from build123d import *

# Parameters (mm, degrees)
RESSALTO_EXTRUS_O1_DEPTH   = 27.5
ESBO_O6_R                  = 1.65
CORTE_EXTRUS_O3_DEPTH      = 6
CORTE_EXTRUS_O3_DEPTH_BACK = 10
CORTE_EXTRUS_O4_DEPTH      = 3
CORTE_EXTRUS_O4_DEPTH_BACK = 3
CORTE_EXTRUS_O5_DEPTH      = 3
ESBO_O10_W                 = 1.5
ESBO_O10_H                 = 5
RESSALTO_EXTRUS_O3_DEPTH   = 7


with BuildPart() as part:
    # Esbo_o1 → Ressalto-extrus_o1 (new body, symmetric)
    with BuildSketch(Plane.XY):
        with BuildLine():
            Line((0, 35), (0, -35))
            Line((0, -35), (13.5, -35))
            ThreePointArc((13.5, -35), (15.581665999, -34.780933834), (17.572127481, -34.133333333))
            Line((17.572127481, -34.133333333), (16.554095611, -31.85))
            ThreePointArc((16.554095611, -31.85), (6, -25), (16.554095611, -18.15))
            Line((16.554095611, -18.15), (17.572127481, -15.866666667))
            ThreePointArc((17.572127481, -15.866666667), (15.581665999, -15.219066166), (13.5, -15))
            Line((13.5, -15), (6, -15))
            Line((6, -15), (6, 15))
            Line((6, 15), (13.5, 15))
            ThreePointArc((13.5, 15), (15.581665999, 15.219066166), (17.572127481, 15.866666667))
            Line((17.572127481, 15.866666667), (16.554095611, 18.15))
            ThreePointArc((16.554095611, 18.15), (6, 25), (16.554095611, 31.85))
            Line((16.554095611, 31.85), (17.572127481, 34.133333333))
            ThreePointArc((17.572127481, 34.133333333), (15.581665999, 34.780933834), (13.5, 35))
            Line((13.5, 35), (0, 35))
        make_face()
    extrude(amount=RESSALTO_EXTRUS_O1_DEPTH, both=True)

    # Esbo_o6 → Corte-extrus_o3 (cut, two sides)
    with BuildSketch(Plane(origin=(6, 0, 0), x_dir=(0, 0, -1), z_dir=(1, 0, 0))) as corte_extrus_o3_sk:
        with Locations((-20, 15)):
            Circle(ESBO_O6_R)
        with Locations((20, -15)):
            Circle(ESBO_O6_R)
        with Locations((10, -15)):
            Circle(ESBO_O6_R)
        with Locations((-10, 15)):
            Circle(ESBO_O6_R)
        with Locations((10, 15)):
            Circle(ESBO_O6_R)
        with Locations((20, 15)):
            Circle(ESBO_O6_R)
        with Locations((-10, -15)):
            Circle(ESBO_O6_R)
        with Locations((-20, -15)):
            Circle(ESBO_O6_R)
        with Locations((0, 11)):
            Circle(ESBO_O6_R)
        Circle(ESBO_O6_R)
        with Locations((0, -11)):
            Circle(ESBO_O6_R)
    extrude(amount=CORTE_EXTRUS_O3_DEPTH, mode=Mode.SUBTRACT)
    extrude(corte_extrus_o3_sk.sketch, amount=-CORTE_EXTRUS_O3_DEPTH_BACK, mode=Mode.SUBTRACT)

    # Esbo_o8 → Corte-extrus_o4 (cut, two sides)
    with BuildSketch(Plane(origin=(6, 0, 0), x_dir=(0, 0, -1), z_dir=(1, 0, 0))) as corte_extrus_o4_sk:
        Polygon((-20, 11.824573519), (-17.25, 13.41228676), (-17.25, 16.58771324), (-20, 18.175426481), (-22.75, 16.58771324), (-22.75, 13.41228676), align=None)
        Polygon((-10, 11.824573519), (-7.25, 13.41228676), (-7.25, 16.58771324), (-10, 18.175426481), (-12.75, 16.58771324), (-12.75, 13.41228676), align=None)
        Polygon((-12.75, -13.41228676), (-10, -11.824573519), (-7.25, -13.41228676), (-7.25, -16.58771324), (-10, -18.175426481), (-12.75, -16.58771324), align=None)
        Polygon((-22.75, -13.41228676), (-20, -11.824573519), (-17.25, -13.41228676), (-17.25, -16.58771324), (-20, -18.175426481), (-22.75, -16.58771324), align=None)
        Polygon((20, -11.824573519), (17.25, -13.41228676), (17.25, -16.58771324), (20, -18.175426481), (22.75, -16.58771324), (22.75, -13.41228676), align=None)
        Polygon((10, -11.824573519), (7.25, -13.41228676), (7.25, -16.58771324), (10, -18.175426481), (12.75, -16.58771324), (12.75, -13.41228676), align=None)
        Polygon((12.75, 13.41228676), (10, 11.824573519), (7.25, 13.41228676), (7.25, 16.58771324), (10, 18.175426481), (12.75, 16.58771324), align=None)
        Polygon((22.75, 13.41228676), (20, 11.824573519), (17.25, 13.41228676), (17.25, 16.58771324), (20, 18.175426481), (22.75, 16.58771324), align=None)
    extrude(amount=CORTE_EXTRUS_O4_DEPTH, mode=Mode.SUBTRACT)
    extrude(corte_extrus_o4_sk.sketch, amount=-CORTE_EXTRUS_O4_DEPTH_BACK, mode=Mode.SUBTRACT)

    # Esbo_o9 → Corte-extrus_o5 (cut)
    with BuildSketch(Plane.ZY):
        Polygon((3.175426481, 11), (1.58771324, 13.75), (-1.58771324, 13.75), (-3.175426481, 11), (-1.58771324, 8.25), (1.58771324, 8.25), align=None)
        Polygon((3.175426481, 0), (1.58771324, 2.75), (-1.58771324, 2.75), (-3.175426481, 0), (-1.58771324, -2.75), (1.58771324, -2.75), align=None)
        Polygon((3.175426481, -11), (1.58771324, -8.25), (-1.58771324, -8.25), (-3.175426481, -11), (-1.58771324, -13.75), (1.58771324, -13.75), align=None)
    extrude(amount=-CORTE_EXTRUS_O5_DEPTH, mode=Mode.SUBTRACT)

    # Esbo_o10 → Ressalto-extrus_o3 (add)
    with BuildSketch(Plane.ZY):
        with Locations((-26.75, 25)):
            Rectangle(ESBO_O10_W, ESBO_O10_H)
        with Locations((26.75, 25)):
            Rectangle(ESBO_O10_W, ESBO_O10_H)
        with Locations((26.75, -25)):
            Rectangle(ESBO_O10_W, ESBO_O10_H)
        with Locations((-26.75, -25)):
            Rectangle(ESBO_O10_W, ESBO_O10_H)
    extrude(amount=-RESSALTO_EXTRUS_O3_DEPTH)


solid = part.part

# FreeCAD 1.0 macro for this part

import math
import FreeCAD as App
import Part
import Sketcher
Q = App.Units.Quantity


def add_polygon(sketch, points):
    """Adds a closed chain of lines whose ends are joined by coincident constraints."""
    first, n = sketch.GeometryCount, len(points)
    for a, b in zip(points, points[1:] + points[:1]):
        sketch.addGeometry(Part.LineSegment(App.Vector(*a, 0), App.Vector(*b, 0)), False)
    for i in range(n):
        sketch.addConstraint(Sketcher.Constraint("Coincident", first + i, 2, first + (i + 1) % n, 1))

doc = App.newDocument("Part")
body = doc.addObject("PartDesign::Body", "Body")

# Sketch on XY plane
sketch1 = body.newObject("Sketcher::SketchObject", "Sketch")
sketch1.AttachmentSupport = (doc.getObject("XY_Plane"), [""])
sketch1.MapMode = "FlatFace"
sketch1.addGeometry(Part.LineSegment(App.Vector(0, 35, 0), App.Vector(0, -35, 0)), False)
sketch1.addGeometry(Part.LineSegment(App.Vector(0, -35, 0), App.Vector(13.5, -35, 0)), False)
sketch1.addGeometry(Part.ArcOfCircle(Part.Circle(App.Vector(13.5, -25, 0), App.Vector(0, 0, 1), 10), math.radians(-90), math.radians(-66)), False)
sketch1.addGeometry(Part.LineSegment(App.Vector(17.6, -34.1, 0), App.Vector(16.6, -31.9, 0)), False)
sketch1.addGeometry(Part.ArcOfCircle(Part.Circle(App.Vector(13.5, -25, 0), App.Vector(0, 0, 1), 7.5), math.radians(66), math.radians(294)), False)
sketch1.addGeometry(Part.LineSegment(App.Vector(16.6, -18.1, 0), App.Vector(17.6, -15.9, 0)), False)
sketch1.addGeometry(Part.ArcOfCircle(Part.Circle(App.Vector(13.5, -25, 0), App.Vector(0, 0, 1), 10), math.radians(66), math.radians(90)), False)
sketch1.addGeometry(Part.LineSegment(App.Vector(13.5, -15, 0), App.Vector(6, -15, 0)), False)
sketch1.addGeometry(Part.LineSegment(App.Vector(6, -15, 0), App.Vector(6, 15, 0)), False)
sketch1.addGeometry(Part.LineSegment(App.Vector(6, 15, 0), App.Vector(13.5, 15, 0)), False)
sketch1.addGeometry(Part.ArcOfCircle(Part.Circle(App.Vector(13.5, 25, 0), App.Vector(0, 0, 1), 10), math.radians(-90), math.radians(-66)), False)
sketch1.addGeometry(Part.LineSegment(App.Vector(17.6, 15.9, 0), App.Vector(16.6, 18.1, 0)), False)
sketch1.addGeometry(Part.ArcOfCircle(Part.Circle(App.Vector(13.5, 25, 0), App.Vector(0, 0, 1), 7.5), math.radians(66), math.radians(294)), False)
sketch1.addGeometry(Part.LineSegment(App.Vector(16.6, 31.9, 0), App.Vector(17.6, 34.1, 0)), False)
sketch1.addGeometry(Part.ArcOfCircle(Part.Circle(App.Vector(13.5, 25, 0), App.Vector(0, 0, 1), 10), math.radians(66), math.radians(90)), False)
sketch1.addGeometry(Part.LineSegment(App.Vector(13.5, 35, 0), App.Vector(0, 35, 0)), False)
sketch1.addConstraint(Sketcher.Constraint("Coincident", 0, 2, 1, 1))
sketch1.addConstraint(Sketcher.Constraint("Tangent", 1, 2, 2, 1))
sketch1.addConstraint(Sketcher.Constraint("Coincident", 2, 2, 3, 1))
sketch1.addConstraint(Sketcher.Constraint("Coincident", 3, 2, 4, 2))
sketch1.addConstraint(Sketcher.Constraint("Coincident", 4, 1, 5, 1))
sketch1.addConstraint(Sketcher.Constraint("Coincident", 5, 2, 6, 1))
sketch1.addConstraint(Sketcher.Constraint("Tangent", 6, 2, 7, 1))
sketch1.addConstraint(Sketcher.Constraint("Coincident", 7, 2, 8, 1))
sketch1.addConstraint(Sketcher.Constraint("Coincident", 8, 2, 9, 1))
sketch1.addConstraint(Sketcher.Constraint("Tangent", 9, 2, 10, 1))
sketch1.addConstraint(Sketcher.Constraint("Coincident", 10, 2, 11, 1))
sketch1.addConstraint(Sketcher.Constraint("Coincident", 11, 2, 12, 2))
sketch1.addConstraint(Sketcher.Constraint("Coincident", 12, 1, 13, 1))
sketch1.addConstraint(Sketcher.Constraint("Coincident", 13, 2, 14, 1))
sketch1.addConstraint(Sketcher.Constraint("Tangent", 14, 2, 15, 1))
sketch1.addConstraint(Sketcher.Constraint("Coincident", 15, 2, 0, 1))
sketch1.addConstraint(Sketcher.Constraint("Vertical", 0))
sketch1.addConstraint(Sketcher.Constraint("Horizontal", 1))
sketch1.addConstraint(Sketcher.Constraint("Horizontal", 7))
sketch1.addConstraint(Sketcher.Constraint("Vertical", 8))
sketch1.addConstraint(Sketcher.Constraint("Horizontal", 9))
sketch1.addConstraint(Sketcher.Constraint("Horizontal", 15))
sketch1.addConstraint(Sketcher.Constraint("Coincident", 4, 3, 2, 3))
sketch1.addConstraint(Sketcher.Constraint("Coincident", 6, 3, 2, 3))
sketch1.addConstraint(Sketcher.Constraint("Coincident", 12, 3, 10, 3))
sketch1.addConstraint(Sketcher.Constraint("Coincident", 14, 3, 10, 3))
sketch1.addConstraint(Sketcher.Constraint("Equal", 2, 6))
sketch1.addConstraint(Sketcher.Constraint("Equal", 6, 10))
sketch1.addConstraint(Sketcher.Constraint("Equal", 4, 12))
sketch1.addConstraint(Sketcher.Constraint("Equal", 10, 14))
sketch1.addConstraint(Sketcher.Constraint("Symmetric", 0, 2, 15, 2, -1, 1))
sketch1.addConstraint(Sketcher.Constraint("Symmetric", 5, 2, 10, 2, -1))
sketch1.addConstraint(Sketcher.Constraint("Parallel", 3, 11))
sketch1.addConstraint(Sketcher.Constraint("Parallel", 5, 13))
sketch1.addConstraint(Sketcher.Constraint("Vertical", 3, 2, 4, 1))
sketch1.addConstraint(Sketcher.Constraint("Vertical", 2, 2, 5, 2))
sketch1.addConstraint(Sketcher.Constraint("Vertical", 11, 2, 12, 1))
sketch1.addConstraint(Sketcher.Constraint("Radius", 2, 10.0))
sketch1.addConstraint(Sketcher.Constraint("Radius", 4, 7.5))
sketch1.addConstraint(Sketcher.Constraint("DistanceY", 0, 2, 0, 1, 70.0))
sketch1.addConstraint(Sketcher.Constraint("DistanceX", 1, 1, 1, 2, 13.5))
sketch1.addConstraint(Sketcher.Constraint("DistanceX", 7, 2, 7, 1, 7.5))
sketch1.addConstraint(Sketcher.Constraint("DistanceY", 3, 2, 4, 1, 13.7))
sketch1.addConstraint(Sketcher.Constraint("DistanceX", 3, 2, 2, 2, 1.018032))
pad1 = body.newObject("PartDesign::Pad", "Pad")
pad1.Profile = sketch1
pad1.Length = 55
pad1.Midplane = True

# Sketch on YZ plane
sketch2 = body.newObject("Sketcher::SketchObject", "Sketch001")
sketch2.AttachmentSupport = (doc.getObject("YZ_Plane"), [""])
sketch2.MapMode = "FlatFace"
sketch2.AttachmentOffset = App.Placement(App.Vector(0, 0, 6), App.Rotation())
sketch2.addGeometry(Part.Circle(App.Vector(15, 20, 0), App.Vector(0, 0, 1), 1.6), False)
sketch2.addGeometry(Part.Circle(App.Vector(-15, -20, 0), App.Vector(0, 0, 1), 1.6), False)
sketch2.addGeometry(Part.Circle(App.Vector(-15, -10, 0), App.Vector(0, 0, 1), 1.6), False)
sketch2.addGeometry(Part.Circle(App.Vector(15, 10, 0), App.Vector(0, 0, 1), 1.6), False)
sketch2.addGeometry(Part.Circle(App.Vector(15, -10, 0), App.Vector(0, 0, 1), 1.6), False)
sketch2.addGeometry(Part.Circle(App.Vector(15, -20, 0), App.Vector(0, 0, 1), 1.6), False)
sketch2.addGeometry(Part.Circle(App.Vector(-15, 10, 0), App.Vector(0, 0, 1), 1.6), False)
sketch2.addGeometry(Part.Circle(App.Vector(-15, 20, 0), App.Vector(0, 0, 1), 1.6), False)
sketch2.addGeometry(Part.Circle(App.Vector(11, 0, 0), App.Vector(0, 0, 1), 1.6), False)
sketch2.addGeometry(Part.Circle(App.Vector(0, 0, 0), App.Vector(0, 0, 1), 1.6), False)
sketch2.addGeometry(Part.Circle(App.Vector(-11, 0, 0), App.Vector(0, 0, 1), 1.6), False)
sketch2.addConstraint(Sketcher.Constraint("Coincident", 9, 3, -1, 1))
sketch2.addConstraint(Sketcher.Constraint("Equal", 0, 1))
sketch2.addConstraint(Sketcher.Constraint("Equal", 1, 2))
sketch2.addConstraint(Sketcher.Constraint("Equal", 2, 3))
sketch2.addConstraint(Sketcher.Constraint("Equal", 3, 4))
sketch2.addConstraint(Sketcher.Constraint("Equal", 4, 5))
sketch2.addConstraint(Sketcher.Constraint("Equal", 5, 6))
sketch2.addConstraint(Sketcher.Constraint("Equal", 6, 7))
sketch2.addConstraint(Sketcher.Constraint("Equal", 7, 8))
sketch2.addConstraint(Sketcher.Constraint("Equal", 8, 9))
sketch2.addConstraint(Sketcher.Constraint("Equal", 9, 10))
sketch2.addConstraint(Sketcher.Constraint("Symmetric", 0, 3, 1, 3, -1, 1))
sketch2.addConstraint(Sketcher.Constraint("Symmetric", 2, 3, 3, 3, -1, 1))
sketch2.addConstraint(Sketcher.Constraint("Symmetric", 4, 3, 6, 3, -1, 1))
sketch2.addConstraint(Sketcher.Constraint("Symmetric", 5, 3, 7, 3, -1, 1))
sketch2.addConstraint(Sketcher.Constraint("Symmetric", 8, 3, 10, 3, -1, 1))
sketch2.addConstraint(Sketcher.Constraint("Symmetric", 2, 3, 4, 3, -2))
sketch2.addConstraint(Sketcher.Constraint("Symmetric", 1, 3, 5, 3, -2))
sketch2.addConstraint(Sketcher.Constraint("PointOnObject", 8, 3, -1))
sketch2.addConstraint(Sketcher.Constraint("Vertical", 1, 3, 2, 3))
sketch2.addConstraint(Sketcher.Constraint("Diameter", 0, 3.3))
sketch2.addConstraint(Sketcher.Constraint("DistanceX", -1, 1, 0, 3, 15.0))
sketch2.addConstraint(Sketcher.Constraint("DistanceY", -1, 1, 0, 3, 20.0))
sketch2.addConstraint(Sketcher.Constraint("DistanceY", 2, 3, -1, 1, 10.0))
sketch2.addConstraint(Sketcher.Constraint("DistanceX", -1, 1, 8, 3, 11.0))
pocket1 = body.newObject("PartDesign::Pocket", "Pocket")
pocket1.Profile = sketch2
pocket1.Type = "TwoLengths"
pocket1.Length = 6
pocket1.Length2 = 10
pocket1.Reversed = True

# Sketch on YZ plane
sketch3 = body.newObject("Sketcher::SketchObject", "Sketch002")
sketch3.AttachmentSupport = (doc.getObject("YZ_Plane"), [""])
sketch3.MapMode = "FlatFace"
sketch3.AttachmentOffset = App.Placement(App.Vector(0, 0, 6), App.Rotation())
add_polygon(sketch3, [(11.8, 20), (13.4, 17.2), (16.6, 17.2), (18.2, 20), (16.6, 22.8), (13.4, 22.8)])  # lines 0-5
add_polygon(sketch3, [(11.8, 10), (13.4, 7.2), (16.6, 7.2), (18.2, 10), (16.6, 12.8), (13.4, 12.8)])  # lines 6-11
add_polygon(sketch3, [(-11.8, 10), (-13.4, 12.8), (-16.6, 12.8), (-18.2, 10), (-16.6, 7.2), (-13.4, 7.2)])  # lines 12-17
add_polygon(sketch3, [(-11.8, 20), (-13.4, 22.8), (-16.6, 22.8), (-18.2, 20), (-16.6, 17.2), (-13.4, 17.2)])  # lines 18-23
add_polygon(sketch3, [(-11.8, -20), (-13.4, -17.2), (-16.6, -17.2), (-18.2, -20), (-16.6, -22.8), (-13.4, -22.8)])  # lines 24-29
add_polygon(sketch3, [(-11.8, -10), (-13.4, -7.2), (-16.6, -7.2), (-18.2, -10), (-16.6, -12.8), (-13.4, -12.8)])  # lines 30-35
add_polygon(sketch3, [(11.8, -10), (13.4, -12.8), (16.6, -12.8), (18.2, -10), (16.6, -7.2), (13.4, -7.2)])  # lines 36-41
add_polygon(sketch3, [(11.8, -20), (13.4, -22.8), (16.6, -22.8), (18.2, -20), (16.6, -17.2), (13.4, -17.2)])  # lines 42-47
sketch3.addConstraint(Sketcher.Constraint("Horizontal", 1))
sketch3.addConstraint(Sketcher.Constraint("Horizontal", 4))
sketch3.addConstraint(Sketcher.Constraint("Horizontal", 7))
sketch3.addConstraint(Sketcher.Constraint("Horizontal", 10))
sketch3.addConstraint(Sketcher.Constraint("Horizontal", 13))
sketch3.addConstraint(Sketcher.Constraint("Horizontal", 16))
sketch3.addConstraint(Sketcher.Constraint("Horizontal", 19))
sketch3.addConstraint(Sketcher.Constraint("Horizontal", 22))
sketch3.addConstraint(Sketcher.Constraint("Horizontal", 25))
sketch3.addConstraint(Sketcher.Constraint("Horizontal", 28))
sketch3.addConstraint(Sketcher.Constraint("Horizontal", 31))
sketch3.addConstraint(Sketcher.Constraint("Horizontal", 34))
sketch3.addConstraint(Sketcher.Constraint("Horizontal", 37))
sketch3.addConstraint(Sketcher.Constraint("Horizontal", 40))
sketch3.addConstraint(Sketcher.Constraint("Horizontal", 43))
sketch3.addConstraint(Sketcher.Constraint("Horizontal", 46))
sketch3.addConstraint(Sketcher.Constraint("Symmetric", 0, 2, 24, 2, -1, 1))
sketch3.addConstraint(Sketcher.Constraint("Symmetric", 2, 2, 26, 2, -1, 1))
sketch3.addConstraint(Sketcher.Constraint("Symmetric", 3, 2, 27, 2, -1, 1))
sketch3.addConstraint(Sketcher.Constraint("Symmetric", 5, 2, 29, 2, -1, 1))
sketch3.addConstraint(Sketcher.Constraint("Symmetric", 6, 2, 30, 2, -1, 1))
sketch3.addConstraint(Sketcher.Constraint("Symmetric", 8, 2, 32, 2, -1, 1))
sketch3.addConstraint(Sketcher.Constraint("Symmetric", 9, 2, 33, 2, -1, 1))
sketch3.addConstraint(Sketcher.Constraint("Symmetric", 11, 2, 35, 2, -1, 1))
sketch3.addConstraint(Sketcher.Constraint("Symmetric", 12, 2, 36, 2, -1, 1))
sketch3.addConstraint(Sketcher.Constraint("Symmetric", 14, 2, 38, 2, -1, 1))
sketch3.addConstraint(Sketcher.Constraint("Symmetric", 15, 2, 39, 2, -1, 1))
sketch3.addConstraint(Sketcher.Constraint("Symmetric", 17, 2, 41, 2, -1, 1))
sketch3.addConstraint(Sketcher.Constraint("Symmetric", 18, 2, 42, 2, -1, 1))
sketch3.addConstraint(Sketcher.Constraint("Symmetric", 20, 2, 44, 2, -1, 1))
sketch3.addConstraint(Sketcher.Constraint("Symmetric", 21, 2, 45, 2, -1, 1))
sketch3.addConstraint(Sketcher.Constraint("Symmetric", 23, 2, 47, 2, -1, 1))
sketch3.addConstraint(Sketcher.Constraint("Symmetric", 10, 2, 12, 2, -2))
sketch3.addConstraint(Sketcher.Constraint("Symmetric", 8, 2, 14, 2, -2))
sketch3.addConstraint(Sketcher.Constraint("Symmetric", 7, 2, 15, 2, -2))
sketch3.addConstraint(Sketcher.Constraint("Symmetric", 11, 2, 17, 2, -2))
sketch3.addConstraint(Sketcher.Constraint("Symmetric", 4, 2, 18, 2, -2))
sketch3.addConstraint(Sketcher.Constraint("Symmetric", 2, 2, 20, 2, -2))
sketch3.addConstraint(Sketcher.Constraint("Symmetric", 1, 2, 21, 2, -2))
sketch3.addConstraint(Sketcher.Constraint("Symmetric", 5, 2, 23, 2, -2))
sketch3.addConstraint(Sketcher.Constraint("Parallel", 0, 3))
sketch3.addConstraint(Sketcher.Constraint("Parallel", 2, 5))
sketch3.addConstraint(Sketcher.Constraint("Parallel", 3, 6))
sketch3.addConstraint(Sketcher.Constraint("Parallel", 5, 8))
sketch3.addConstraint(Sketcher.Constraint("Parallel", 6, 9))
sketch3.addConstraint(Sketcher.Constraint("Parallel", 8, 11))
sketch3.addConstraint(Sketcher.Constraint("Parallel", 9, 12))
sketch3.addConstraint(Sketcher.Constraint("Parallel", 11, 14))
sketch3.addConstraint(Sketcher.Constraint("Parallel", 14, 17))
sketch3.addConstraint(Sketcher.Constraint("Parallel", 17, 20))
sketch3.addConstraint(Sketcher.Constraint("Parallel", 20, 23))
sketch3.addConstraint(Sketcher.Constraint("Parallel", 23, 26))
sketch3.addConstraint(Sketcher.Constraint("Parallel", 26, 29))
sketch3.addConstraint(Sketcher.Constraint("Parallel", 29, 32))
sketch3.addConstraint(Sketcher.Constraint("Parallel", 32, 35))
sketch3.addConstraint(Sketcher.Constraint("Parallel", 35, 38))
sketch3.addConstraint(Sketcher.Constraint("Parallel", 38, 41))
sketch3.addConstraint(Sketcher.Constraint("Parallel", 41, 44))
sketch3.addConstraint(Sketcher.Constraint("Parallel", 44, 47))
sketch3.addConstraint(Sketcher.Constraint("Horizontal", 2, 2, 5, 2))
sketch3.addConstraint(Sketcher.Constraint("Horizontal", 8, 2, 11, 2))
sketch3.addConstraint(Sketcher.Constraint("Vertical", 1, 2, 3, 2))
sketch3.addConstraint(Sketcher.Constraint("Vertical", 4, 2, 6, 2))
sketch3.addConstraint(Sketcher.Constraint("Vertical", 3, 2, 7, 2))
sketch3.addConstraint(Sketcher.Constraint("Vertical", 2, 2, 8, 2))
sketch3.addConstraint(Sketcher.Constraint("Vertical", 7, 2, 9, 2))
sketch3.addConstraint(Sketcher.Constraint("Angle", 0, Q("-60 deg")))
sketch3.addConstraint(Sketcher.Constraint("DistanceY", -1, 1, 2, 2, 20.0))
sketch3.addConstraint(Sketcher.Constraint("DistanceY", -1, 1, 8, 2, 10.0))
sketch3.addConstraint(Sketcher.Constraint("DistanceX", 13, 2, 10, 2, 30.0))
sketch3.addConstraint(Sketcher.Constraint("DistanceY", 1, 2, 3, 2, 5.5))
sketch3.addConstraint(Sketcher.Constraint("DistanceX", 1, 1, 1, 2, 3.175426))
pocket2 = body.newObject("PartDesign::Pocket", "Pocket001")
pocket2.Profile = sketch3
pocket2.Type = "TwoLengths"
pocket2.Length = 3
pocket2.Length2 = 3
pocket2.Reversed = True

# Sketch on YZ plane
sketch4 = body.newObject("Sketcher::SketchObject", "Sketch003")
sketch4.AttachmentSupport = (doc.getObject("YZ_Plane"), [""])
sketch4.MapMode = "FlatFace"
add_polygon(sketch4, [(11, 3.2), (13.8, 1.6), (13.8, -1.6), (11, -3.2), (8.2, -1.6), (8.2, 1.6)])  # lines 0-5
add_polygon(sketch4, [(0, 3.2), (2.8, 1.6), (2.8, -1.6), (0, -3.2), (-2.8, -1.6), (-2.8, 1.6)])  # lines 6-11
add_polygon(sketch4, [(-11, 3.2), (-8.2, 1.6), (-8.2, -1.6), (-11, -3.2), (-13.8, -1.6), (-13.8, 1.6)])  # lines 12-17
sketch4.addConstraint(Sketcher.Constraint("Vertical", 1))
sketch4.addConstraint(Sketcher.Constraint("Vertical", 4))
sketch4.addConstraint(Sketcher.Constraint("Vertical", 7))
sketch4.addConstraint(Sketcher.Constraint("Vertical", 10))
sketch4.addConstraint(Sketcher.Constraint("Vertical", 13))
sketch4.addConstraint(Sketcher.Constraint("Vertical", 16))
sketch4.addConstraint(Sketcher.Constraint("Symmetric", 6, 2, 9, 2, -1, 1))
sketch4.addConstraint(Sketcher.Constraint("Symmetric", 8, 2, 11, 2, -1, 1))
sketch4.addConstraint(Sketcher.Constraint("Symmetric", 3, 2, 12, 2, -1, 1))
sketch4.addConstraint(Sketcher.Constraint("Symmetric", 5, 2, 14, 2, -1, 1))
sketch4.addConstraint(Sketcher.Constraint("Symmetric", 0, 2, 15, 2, -1, 1))
sketch4.addConstraint(Sketcher.Constraint("Symmetric", 2, 2, 17, 2, -1, 1))
sketch4.addConstraint(Sketcher.Constraint("Symmetric", 2, 2, 14, 2, -2))
sketch4.addConstraint(Sketcher.Constraint("PointOnObject", 8, 2, -2))
sketch4.addConstraint(Sketcher.Constraint("Parallel", 0, 3))
sketch4.addConstraint(Sketcher.Constraint("Parallel", 2, 5))
sketch4.addConstraint(Sketcher.Constraint("Parallel", 3, 6))
sketch4.addConstraint(Sketcher.Constraint("Parallel", 5, 8))
sketch4.addConstraint(Sketcher.Constraint("Parallel", 8, 11))
sketch4.addConstraint(Sketcher.Constraint("Parallel", 11, 14))
sketch4.addConstraint(Sketcher.Constraint("Parallel", 14, 17))
sketch4.addConstraint(Sketcher.Constraint("Horizontal", 1, 2, 3, 2))
sketch4.addConstraint(Sketcher.Constraint("Horizontal", 0, 2, 4, 2))
sketch4.addConstraint(Sketcher.Constraint("Horizontal", 4, 2, 6, 2))
sketch4.addConstraint(Sketcher.Constraint("Horizontal", 2, 2, 8, 2))
sketch4.addConstraint(Sketcher.Constraint("Angle", 0, Q("-30 deg")))
sketch4.addConstraint(Sketcher.Constraint("DistanceX", -1, 1, 2, 2, 11.0))
sketch4.addConstraint(Sketcher.Constraint("DistanceX", 3, 2, 1, 2, 5.5))
sketch4.addConstraint(Sketcher.Constraint("DistanceY", 1, 2, 1, 1, 3.175426))
pocket3 = body.newObject("PartDesign::Pocket", "Pocket002")
pocket3.Profile = sketch4
pocket3.Length = 3
pocket3.Reversed = True

# Sketch on YZ plane
sketch5 = body.newObject("Sketcher::SketchObject", "Sketch004")
sketch5.AttachmentSupport = (doc.getObject("YZ_Plane"), [""])
sketch5.MapMode = "FlatFace"
add_polygon(sketch5, [(27.5, -27.5), (22.5, -27.5), (22.5, -26), (27.5, -26)])  # lines 0-3
add_polygon(sketch5, [(27.5, 26), (22.5, 26), (22.5, 27.5), (27.5, 27.5)])  # lines 4-7
add_polygon(sketch5, [(-22.5, 26), (-27.5, 26), (-27.5, 27.5), (-22.5, 27.5)])  # lines 8-11
add_polygon(sketch5, [(-22.5, -27.5), (-27.5, -27.5), (-27.5, -26), (-22.5, -26)])  # lines 12-15
sketch5.addConstraint(Sketcher.Constraint("Horizontal", 0))
sketch5.addConstraint(Sketcher.Constraint("Vertical", 1))
sketch5.addConstraint(Sketcher.Constraint("Horizontal", 2))
sketch5.addConstraint(Sketcher.Constraint("Vertical", 3))
sketch5.addConstraint(Sketcher.Constraint("Horizontal", 4))
sketch5.addConstraint(Sketcher.Constraint("Vertical", 5))
sketch5.addConstraint(Sketcher.Constraint("Horizontal", 6))
sketch5.addConstraint(Sketcher.Constraint("Vertical", 7))
sketch5.addConstraint(Sketcher.Constraint("Horizontal", 8))
sketch5.addConstraint(Sketcher.Constraint("Vertical", 9))
sketch5.addConstraint(Sketcher.Constraint("Horizontal", 10))
sketch5.addConstraint(Sketcher.Constraint("Vertical", 11))
sketch5.addConstraint(Sketcher.Constraint("Horizontal", 12))
sketch5.addConstraint(Sketcher.Constraint("Vertical", 13))
sketch5.addConstraint(Sketcher.Constraint("Horizontal", 14))
sketch5.addConstraint(Sketcher.Constraint("Vertical", 15))
sketch5.addConstraint(Sketcher.Constraint("Symmetric", 2, 2, 8, 2, -1, 1))
sketch5.addConstraint(Sketcher.Constraint("Symmetric", 0, 2, 10, 2, -1, 1))
sketch5.addConstraint(Sketcher.Constraint("Symmetric", 6, 2, 12, 2, -1, 1))
sketch5.addConstraint(Sketcher.Constraint("Symmetric", 4, 2, 14, 2, -1, 1))
sketch5.addConstraint(Sketcher.Constraint("Symmetric", 7, 2, 8, 2, -2))
sketch5.addConstraint(Sketcher.Constraint("Symmetric", 5, 2, 10, 2, -2))
sketch5.addConstraint(Sketcher.Constraint("DistanceX", 0, 2, 0, 1, 5.0))
sketch5.addConstraint(Sketcher.Constraint("DistanceY", 1, 1, 1, 2, 1.5))
sketch5.addConstraint(Sketcher.Constraint("DistanceY", 1, 2, -1, 1, 26.0))
sketch5.addConstraint(Sketcher.Constraint("DistanceX", 8, 2, 4, 2, 50.0))
pad2 = body.newObject("PartDesign::Pad", "Pad001")
pad2.Profile = sketch5
pad2.Length = 7

doc.recompute()
